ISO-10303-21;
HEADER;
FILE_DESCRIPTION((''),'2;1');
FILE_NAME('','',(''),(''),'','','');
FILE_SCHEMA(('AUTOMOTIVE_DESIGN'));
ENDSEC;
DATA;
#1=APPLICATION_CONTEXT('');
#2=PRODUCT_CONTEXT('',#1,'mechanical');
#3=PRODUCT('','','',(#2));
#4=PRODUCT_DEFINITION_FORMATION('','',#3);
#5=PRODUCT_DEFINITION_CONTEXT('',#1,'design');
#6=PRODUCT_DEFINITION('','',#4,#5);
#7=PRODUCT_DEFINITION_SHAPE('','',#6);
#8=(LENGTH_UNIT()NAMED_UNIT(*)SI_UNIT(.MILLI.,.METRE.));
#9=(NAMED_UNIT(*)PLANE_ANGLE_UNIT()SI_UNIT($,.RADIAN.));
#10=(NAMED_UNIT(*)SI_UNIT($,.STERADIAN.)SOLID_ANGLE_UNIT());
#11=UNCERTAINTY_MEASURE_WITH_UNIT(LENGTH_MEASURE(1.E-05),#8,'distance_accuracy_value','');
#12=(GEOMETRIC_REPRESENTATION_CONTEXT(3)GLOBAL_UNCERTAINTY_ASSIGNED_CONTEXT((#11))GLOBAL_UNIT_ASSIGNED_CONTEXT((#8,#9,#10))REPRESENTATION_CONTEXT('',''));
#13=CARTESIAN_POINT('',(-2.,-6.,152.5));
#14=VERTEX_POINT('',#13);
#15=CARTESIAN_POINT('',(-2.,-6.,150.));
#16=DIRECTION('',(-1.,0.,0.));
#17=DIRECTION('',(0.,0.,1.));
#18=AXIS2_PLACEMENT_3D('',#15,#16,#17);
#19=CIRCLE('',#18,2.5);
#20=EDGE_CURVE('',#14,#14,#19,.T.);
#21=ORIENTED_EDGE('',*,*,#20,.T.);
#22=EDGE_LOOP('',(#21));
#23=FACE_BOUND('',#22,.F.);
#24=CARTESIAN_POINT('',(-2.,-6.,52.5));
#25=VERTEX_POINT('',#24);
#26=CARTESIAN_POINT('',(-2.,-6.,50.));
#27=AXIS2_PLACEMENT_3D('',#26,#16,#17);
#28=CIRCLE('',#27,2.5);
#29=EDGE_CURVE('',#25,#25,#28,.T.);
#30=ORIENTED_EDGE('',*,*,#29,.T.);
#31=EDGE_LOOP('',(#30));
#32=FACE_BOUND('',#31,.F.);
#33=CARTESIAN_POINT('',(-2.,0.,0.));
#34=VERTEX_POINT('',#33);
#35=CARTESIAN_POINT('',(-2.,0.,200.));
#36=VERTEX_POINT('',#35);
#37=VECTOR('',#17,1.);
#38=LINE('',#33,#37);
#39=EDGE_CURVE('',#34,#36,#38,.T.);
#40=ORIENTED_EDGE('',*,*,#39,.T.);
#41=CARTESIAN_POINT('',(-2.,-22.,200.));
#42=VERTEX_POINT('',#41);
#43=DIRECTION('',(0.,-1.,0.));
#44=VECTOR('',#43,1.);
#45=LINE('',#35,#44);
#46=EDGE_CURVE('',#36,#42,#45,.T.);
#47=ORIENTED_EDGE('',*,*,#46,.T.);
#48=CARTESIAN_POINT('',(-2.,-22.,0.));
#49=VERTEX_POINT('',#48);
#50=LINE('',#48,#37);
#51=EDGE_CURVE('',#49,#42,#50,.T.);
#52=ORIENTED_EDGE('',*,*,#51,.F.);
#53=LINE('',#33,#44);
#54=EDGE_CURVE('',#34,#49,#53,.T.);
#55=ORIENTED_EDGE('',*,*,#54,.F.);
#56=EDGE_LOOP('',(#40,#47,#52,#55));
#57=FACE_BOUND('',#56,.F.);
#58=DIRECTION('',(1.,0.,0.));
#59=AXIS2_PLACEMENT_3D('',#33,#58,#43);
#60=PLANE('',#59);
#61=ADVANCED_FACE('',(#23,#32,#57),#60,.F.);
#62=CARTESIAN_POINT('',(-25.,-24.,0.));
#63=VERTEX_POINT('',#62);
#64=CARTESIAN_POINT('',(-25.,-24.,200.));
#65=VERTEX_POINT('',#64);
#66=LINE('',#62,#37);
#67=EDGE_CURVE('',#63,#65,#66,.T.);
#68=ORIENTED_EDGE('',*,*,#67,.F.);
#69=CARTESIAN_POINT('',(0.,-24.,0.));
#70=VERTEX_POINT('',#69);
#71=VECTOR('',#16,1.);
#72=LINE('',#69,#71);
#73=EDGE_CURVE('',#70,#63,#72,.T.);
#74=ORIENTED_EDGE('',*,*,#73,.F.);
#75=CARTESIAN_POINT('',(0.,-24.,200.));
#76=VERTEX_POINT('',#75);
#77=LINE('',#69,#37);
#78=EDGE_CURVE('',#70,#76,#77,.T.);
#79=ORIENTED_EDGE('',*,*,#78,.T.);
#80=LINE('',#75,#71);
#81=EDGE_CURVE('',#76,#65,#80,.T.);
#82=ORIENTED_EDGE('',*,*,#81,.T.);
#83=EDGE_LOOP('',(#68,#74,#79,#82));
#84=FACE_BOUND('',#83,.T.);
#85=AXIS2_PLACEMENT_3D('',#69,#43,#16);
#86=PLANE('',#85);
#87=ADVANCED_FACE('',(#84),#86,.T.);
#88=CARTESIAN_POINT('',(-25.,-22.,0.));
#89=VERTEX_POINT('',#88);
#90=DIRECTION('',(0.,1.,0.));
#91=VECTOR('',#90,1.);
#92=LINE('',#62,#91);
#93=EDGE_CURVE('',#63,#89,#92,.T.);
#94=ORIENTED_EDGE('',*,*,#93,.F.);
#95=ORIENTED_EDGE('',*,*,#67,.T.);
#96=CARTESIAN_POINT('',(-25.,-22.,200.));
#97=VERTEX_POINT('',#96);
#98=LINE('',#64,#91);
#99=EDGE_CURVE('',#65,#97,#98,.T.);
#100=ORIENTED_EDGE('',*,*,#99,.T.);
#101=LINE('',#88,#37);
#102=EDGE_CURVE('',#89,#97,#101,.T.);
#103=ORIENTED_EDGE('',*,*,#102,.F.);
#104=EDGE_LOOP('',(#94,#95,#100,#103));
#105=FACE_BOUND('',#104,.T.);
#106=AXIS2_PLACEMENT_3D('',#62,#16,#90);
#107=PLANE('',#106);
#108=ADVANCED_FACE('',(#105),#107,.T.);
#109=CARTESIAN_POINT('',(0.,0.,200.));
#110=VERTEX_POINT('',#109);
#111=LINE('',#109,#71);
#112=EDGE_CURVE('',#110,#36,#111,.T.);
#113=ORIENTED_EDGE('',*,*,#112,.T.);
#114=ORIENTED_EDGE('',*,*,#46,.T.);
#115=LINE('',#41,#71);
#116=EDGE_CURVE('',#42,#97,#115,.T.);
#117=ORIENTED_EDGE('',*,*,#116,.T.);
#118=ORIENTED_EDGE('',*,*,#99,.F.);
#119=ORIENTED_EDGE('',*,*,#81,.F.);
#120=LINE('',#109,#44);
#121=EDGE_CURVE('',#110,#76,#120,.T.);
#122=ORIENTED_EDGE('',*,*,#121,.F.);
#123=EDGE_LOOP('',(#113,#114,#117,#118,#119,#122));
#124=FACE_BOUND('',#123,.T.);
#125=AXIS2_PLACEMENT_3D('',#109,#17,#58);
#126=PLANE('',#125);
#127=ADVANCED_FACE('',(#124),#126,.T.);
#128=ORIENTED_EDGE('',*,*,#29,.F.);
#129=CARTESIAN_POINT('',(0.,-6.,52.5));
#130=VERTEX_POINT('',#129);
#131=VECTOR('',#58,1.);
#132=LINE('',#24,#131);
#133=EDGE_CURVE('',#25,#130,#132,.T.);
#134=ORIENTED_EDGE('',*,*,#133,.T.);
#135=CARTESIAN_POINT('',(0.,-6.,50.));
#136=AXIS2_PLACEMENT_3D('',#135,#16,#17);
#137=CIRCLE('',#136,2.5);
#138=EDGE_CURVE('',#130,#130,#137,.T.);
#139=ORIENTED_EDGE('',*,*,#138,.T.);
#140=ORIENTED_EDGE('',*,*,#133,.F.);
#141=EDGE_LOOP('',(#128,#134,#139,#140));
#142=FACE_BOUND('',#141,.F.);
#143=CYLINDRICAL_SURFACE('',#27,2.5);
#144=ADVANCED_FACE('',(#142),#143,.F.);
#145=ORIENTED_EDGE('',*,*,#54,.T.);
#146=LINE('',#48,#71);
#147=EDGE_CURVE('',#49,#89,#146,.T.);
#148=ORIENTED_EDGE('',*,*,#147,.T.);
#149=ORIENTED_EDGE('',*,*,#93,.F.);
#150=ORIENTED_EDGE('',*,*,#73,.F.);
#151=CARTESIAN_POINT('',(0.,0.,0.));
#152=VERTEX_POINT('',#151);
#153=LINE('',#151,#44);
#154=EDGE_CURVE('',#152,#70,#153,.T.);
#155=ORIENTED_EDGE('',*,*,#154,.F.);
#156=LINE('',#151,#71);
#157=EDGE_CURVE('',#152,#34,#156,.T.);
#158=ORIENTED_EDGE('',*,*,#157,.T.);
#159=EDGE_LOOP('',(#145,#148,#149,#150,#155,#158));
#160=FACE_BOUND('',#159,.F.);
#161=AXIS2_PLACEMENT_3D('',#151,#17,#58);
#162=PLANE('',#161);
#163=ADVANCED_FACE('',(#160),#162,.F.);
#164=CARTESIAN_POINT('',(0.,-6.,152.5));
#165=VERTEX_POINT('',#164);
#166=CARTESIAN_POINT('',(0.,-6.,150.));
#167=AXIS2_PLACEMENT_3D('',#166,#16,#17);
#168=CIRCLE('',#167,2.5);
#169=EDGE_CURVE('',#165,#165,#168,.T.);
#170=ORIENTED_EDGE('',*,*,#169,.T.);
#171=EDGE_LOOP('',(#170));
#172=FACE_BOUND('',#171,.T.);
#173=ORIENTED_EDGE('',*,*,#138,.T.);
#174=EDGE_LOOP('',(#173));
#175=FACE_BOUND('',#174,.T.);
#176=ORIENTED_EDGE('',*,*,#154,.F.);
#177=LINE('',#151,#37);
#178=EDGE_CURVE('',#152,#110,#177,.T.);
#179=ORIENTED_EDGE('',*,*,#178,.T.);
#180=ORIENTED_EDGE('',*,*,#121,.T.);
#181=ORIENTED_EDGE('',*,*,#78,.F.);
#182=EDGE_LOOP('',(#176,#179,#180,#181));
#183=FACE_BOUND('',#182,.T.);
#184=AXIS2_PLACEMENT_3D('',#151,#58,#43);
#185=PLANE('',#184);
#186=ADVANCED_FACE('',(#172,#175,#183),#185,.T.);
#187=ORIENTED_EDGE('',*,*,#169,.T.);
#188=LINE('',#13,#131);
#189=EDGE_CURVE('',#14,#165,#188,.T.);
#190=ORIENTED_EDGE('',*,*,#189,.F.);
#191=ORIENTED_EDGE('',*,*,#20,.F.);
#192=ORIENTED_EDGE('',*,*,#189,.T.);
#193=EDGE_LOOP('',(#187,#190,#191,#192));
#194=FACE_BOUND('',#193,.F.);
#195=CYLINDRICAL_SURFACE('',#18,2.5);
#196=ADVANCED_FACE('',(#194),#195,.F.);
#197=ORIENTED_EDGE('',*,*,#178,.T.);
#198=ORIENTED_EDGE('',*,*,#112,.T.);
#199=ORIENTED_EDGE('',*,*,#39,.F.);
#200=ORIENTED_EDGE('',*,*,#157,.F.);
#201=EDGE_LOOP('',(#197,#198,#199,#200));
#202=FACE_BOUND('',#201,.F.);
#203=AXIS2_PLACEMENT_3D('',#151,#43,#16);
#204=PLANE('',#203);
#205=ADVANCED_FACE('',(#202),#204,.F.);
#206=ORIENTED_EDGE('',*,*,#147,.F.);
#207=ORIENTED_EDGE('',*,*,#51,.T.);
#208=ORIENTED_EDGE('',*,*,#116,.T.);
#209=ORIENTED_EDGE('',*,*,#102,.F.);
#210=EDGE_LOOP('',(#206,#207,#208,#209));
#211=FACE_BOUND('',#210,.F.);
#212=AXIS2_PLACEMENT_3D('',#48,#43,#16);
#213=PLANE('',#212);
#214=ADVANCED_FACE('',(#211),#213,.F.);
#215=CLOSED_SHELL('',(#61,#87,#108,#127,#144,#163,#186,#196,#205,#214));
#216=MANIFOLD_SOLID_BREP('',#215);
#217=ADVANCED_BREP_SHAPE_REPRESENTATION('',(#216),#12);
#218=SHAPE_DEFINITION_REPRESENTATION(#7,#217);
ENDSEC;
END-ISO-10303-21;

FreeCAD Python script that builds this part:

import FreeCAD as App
import Part
import Sketcher

V = App.Vector
Q = App.Units.Quantity

doc = App.newDocument("Part")
body = doc.addObject("PartDesign::Body", "Body")

# Sketch on XY plane
sketch1 = doc.addObject("Sketcher::SketchObject", "Sketch")
body.addObject(sketch1)
sketch1.AttachmentSupport = (doc.XY_Plane, [""])
sketch1.MapMode = "FlatFace"
sketch1.addGeometry([
    Part.LineSegment(V(0, -24, 0), V(0, 0, 0)),  # 0
    Part.LineSegment(V(0, 0, 0), V(-2, 0, 0)),  # 1
    Part.LineSegment(V(-2, 0, 0), V(-2, -22, 0)),  # 2
    Part.LineSegment(V(-2, -22, 0), V(-25, -22, 0)),  # 3
    Part.LineSegment(V(-25, -22, 0), V(-25, -24, 0)),  # 4
    Part.LineSegment(V(-25, -24, 0), V(0, -24, 0)),  # 5
], False)
sketch1.addConstraint([
    Sketcher.Constraint("Coincident", 0, 2, 1, 1),
    Sketcher.Constraint("Coincident", 1, 2, 2, 1),
    Sketcher.Constraint("Coincident", 2, 2, 3, 1),
    Sketcher.Constraint("Coincident", 3, 2, 4, 1),
    Sketcher.Constraint("Coincident", 4, 2, 5, 1),
    Sketcher.Constraint("Coincident", 5, 2, 0, 1),
    Sketcher.Constraint("Vertical", 0),
    Sketcher.Constraint("Horizontal", 1),
    Sketcher.Constraint("Vertical", 2),
    Sketcher.Constraint("Horizontal", 3),
    Sketcher.Constraint("Vertical", 4),
    Sketcher.Constraint("Horizontal", 5),
    Sketcher.Constraint("Coincident", 0, 2, -1, 1),
    Sketcher.Constraint("Equal", 1, 4),
    Sketcher.Constraint("DistanceX", 1, 2, 1, 1, Q("2 mm")),
    Sketcher.Constraint("DistanceX", 3, 2, 3, 1, Q("23 mm")),
    Sketcher.Constraint("DistanceY", 0, 1, 0, 2, Q("24 mm")),
])
pad1 = doc.addObject("PartDesign::Pad", "Pad")
body.addObject(pad1)
pad1.Profile = sketch1
pad1.Length = 200

# Sketch on YZ plane
sketch2 = doc.addObject("Sketcher::SketchObject", "Sketch001")
body.addObject(sketch2)
sketch2.AttachmentSupport = (doc.YZ_Plane, [""])
sketch2.MapMode = "FlatFace"
sketch2.AttachmentOffset = App.Placement(V(0, 0, -2), App.Rotation())
sketch2.addGeometry([
    Part.Circle(V(-6, 50, 0), V(0, 0, 1), 2.5),
    Part.Circle(V(-6, 150, 0), V(0, 0, 1), 2.5),
], False)
sketch2.addConstraint([
    Sketcher.Constraint("Equal", 0, 1),
    Sketcher.Constraint("Vertical", 0, 3, 1, 3),
    Sketcher.Constraint("Diameter", 0, Q("5 mm")),
    Sketcher.Constraint("DistanceX", 0, 3, -1, 1, Q("6 mm")),
    Sketcher.Constraint("DistanceY", -1, 1, 0, 3, Q("50 mm")),
    Sketcher.Constraint("DistanceY", -1, 1, 1, 3, Q("150 mm")),
])
pocket1 = doc.addObject("PartDesign::Pocket", "Pocket")
body.addObject(pocket1)
pocket1.Profile = sketch2
pocket1.Type = "ThroughAll"
pocket1.Reversed = True

doc.recompute()
